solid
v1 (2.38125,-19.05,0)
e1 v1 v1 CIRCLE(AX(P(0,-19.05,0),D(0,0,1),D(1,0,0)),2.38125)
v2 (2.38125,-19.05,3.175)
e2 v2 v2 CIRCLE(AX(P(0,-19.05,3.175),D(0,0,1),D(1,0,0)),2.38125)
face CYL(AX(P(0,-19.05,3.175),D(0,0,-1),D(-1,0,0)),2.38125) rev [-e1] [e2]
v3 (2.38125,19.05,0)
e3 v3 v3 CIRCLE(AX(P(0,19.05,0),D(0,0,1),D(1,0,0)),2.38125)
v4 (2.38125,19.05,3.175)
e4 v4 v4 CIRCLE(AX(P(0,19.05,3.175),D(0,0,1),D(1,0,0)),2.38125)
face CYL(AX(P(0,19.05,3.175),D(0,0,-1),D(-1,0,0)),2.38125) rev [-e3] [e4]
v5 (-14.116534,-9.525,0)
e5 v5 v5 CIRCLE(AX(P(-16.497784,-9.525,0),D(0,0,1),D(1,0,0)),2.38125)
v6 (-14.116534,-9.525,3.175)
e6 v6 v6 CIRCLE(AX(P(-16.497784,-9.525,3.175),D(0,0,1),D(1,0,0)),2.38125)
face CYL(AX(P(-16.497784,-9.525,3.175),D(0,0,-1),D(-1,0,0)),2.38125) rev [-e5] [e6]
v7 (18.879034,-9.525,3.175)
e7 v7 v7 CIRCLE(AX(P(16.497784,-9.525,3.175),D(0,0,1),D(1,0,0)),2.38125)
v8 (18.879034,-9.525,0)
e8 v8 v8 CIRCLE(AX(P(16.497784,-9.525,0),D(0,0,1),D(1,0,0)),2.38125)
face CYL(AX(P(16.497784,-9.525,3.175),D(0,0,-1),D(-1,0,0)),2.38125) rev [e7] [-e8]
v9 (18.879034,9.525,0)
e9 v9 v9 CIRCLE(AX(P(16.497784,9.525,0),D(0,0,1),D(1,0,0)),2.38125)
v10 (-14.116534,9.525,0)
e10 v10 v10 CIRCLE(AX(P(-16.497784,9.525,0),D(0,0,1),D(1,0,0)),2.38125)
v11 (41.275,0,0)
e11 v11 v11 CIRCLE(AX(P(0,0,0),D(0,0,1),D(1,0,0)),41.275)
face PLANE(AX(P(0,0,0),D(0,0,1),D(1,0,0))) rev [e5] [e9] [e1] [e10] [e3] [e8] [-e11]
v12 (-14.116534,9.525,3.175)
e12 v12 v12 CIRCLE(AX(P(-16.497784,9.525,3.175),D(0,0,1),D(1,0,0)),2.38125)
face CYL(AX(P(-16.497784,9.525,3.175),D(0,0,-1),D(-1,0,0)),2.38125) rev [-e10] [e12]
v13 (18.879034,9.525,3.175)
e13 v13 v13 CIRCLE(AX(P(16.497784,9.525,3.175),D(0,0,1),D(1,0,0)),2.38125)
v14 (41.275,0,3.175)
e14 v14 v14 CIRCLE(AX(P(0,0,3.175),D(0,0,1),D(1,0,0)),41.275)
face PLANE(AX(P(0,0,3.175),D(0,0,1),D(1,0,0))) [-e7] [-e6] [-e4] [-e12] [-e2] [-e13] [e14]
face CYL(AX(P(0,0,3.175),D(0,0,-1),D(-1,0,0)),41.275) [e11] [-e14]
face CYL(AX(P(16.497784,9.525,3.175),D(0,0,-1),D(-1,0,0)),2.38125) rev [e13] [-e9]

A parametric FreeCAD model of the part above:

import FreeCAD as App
import Part
import Sketcher

V = App.Vector
Q = App.Units.Quantity

doc = App.newDocument("Part")
body = doc.addObject("PartDesign::Body", "Body")

# Sketch on XY plane
sketch1 = body.newObject("Sketcher::SketchObject", "Sketch")
sketch1.AttachmentSupport = (doc.getObject("XY_Plane"), [""])
sketch1.MapMode = "FlatFace"
sketch1.addGeometry([
    Part.Circle(V(0, 0, 0), V(0, 0, 1), 41.275),  # 0
    Part.Circle(V(-16.497784, -9.525, 0), V(0, 0, 1), 2.38125),  # 1
    Part.Circle(V(0, -19.05, 0), V(0, 0, 1), 2.38125),  # 2
    Part.Circle(V(16.497784, -9.525, 0), V(0, 0, 1), 2.38125),  # 3
    Part.Circle(V(-16.497784, 9.525, 0), V(0, 0, 1), 2.38125),  # 4
    Part.Circle(V(16.497784, 9.525, 0), V(0, 0, 1), 2.38125),  # 5
    Part.Circle(V(0, 19.05, 0), V(0, 0, 1), 2.38125),  # 6
], False)
sketch1.addConstraint([
    Sketcher.Constraint("Coincident", 0, 3, -1, 1),
    Sketcher.Constraint("Equal", 1, 2),
    Sketcher.Constraint("Equal", 2, 3),
    Sketcher.Constraint("Equal", 3, 4),
    Sketcher.Constraint("Equal", 4, 5),
    Sketcher.Constraint("Equal", 5, 6),
    Sketcher.Constraint("Symmetric", 3, 3, 4, 3, -1, 1),
    Sketcher.Constraint("Symmetric", 1, 3, 5, 3, -1, 1),
    Sketcher.Constraint("Symmetric", 2, 3, 6, 3, -1, 1),
    Sketcher.Constraint("Symmetric", 1, 3, 3, 3, -2),
    Sketcher.Constraint("PointOnObject", 2, 3, -2),
    Sketcher.Constraint("Diameter", 0, Q("3.25 in")),
    Sketcher.Constraint("Diameter", 1, Q("0.1875 in")),
    Sketcher.Constraint("DistanceY", 2, 3, -1, 1, Q("0.75 in")),
    Sketcher.Constraint("DistanceY", 1, 3, 4, 3, Q("0.75 in")),
    Sketcher.Constraint("DistanceX", 1, 3, -1, 1, 16.497784),
])
pad1 = body.newObject("PartDesign::Pad", "Pad")
pad1.Profile = sketch1
pad1.Length = Q("0.125 in")

doc.recompute()
